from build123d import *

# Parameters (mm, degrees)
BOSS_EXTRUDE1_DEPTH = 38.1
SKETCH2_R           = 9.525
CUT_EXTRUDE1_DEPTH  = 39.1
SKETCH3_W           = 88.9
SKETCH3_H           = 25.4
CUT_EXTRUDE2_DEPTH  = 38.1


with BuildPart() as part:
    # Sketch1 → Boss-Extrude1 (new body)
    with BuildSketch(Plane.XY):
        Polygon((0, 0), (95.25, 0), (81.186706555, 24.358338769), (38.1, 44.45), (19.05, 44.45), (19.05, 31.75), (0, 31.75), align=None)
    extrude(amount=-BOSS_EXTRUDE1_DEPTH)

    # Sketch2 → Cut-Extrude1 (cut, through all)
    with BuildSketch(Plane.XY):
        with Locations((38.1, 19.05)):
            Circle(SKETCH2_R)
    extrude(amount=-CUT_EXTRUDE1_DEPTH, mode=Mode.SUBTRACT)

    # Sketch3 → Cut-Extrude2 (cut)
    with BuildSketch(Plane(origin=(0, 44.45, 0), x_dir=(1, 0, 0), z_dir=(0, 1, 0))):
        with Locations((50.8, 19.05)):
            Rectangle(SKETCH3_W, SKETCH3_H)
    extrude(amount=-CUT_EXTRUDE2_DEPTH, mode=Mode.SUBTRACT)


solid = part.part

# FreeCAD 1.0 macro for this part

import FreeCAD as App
import Part
import Sketcher
Q = App.Units.Quantity

doc = App.newDocument("Part")
body = doc.addObject("PartDesign::Body", "Body")

sketch1 = doc.addObject("Sketcher::SketchObject", "Sketch")
body.addObject(sketch1)
sketch1.AttachmentSupport = (doc.XY_Plane, [""])
sketch1.MapMode = "FlatFace"
sketch1.addGeometry(Part.LineSegment(App.Vector(0, 0, 0), App.Vector(95, 0, 0)), False)
sketch1.addGeometry(Part.LineSegment(App.Vector(95, 0, 0), App.Vector(81, 24, 0)), False)
sketch1.addGeometry(Part.LineSegment(App.Vector(81, 24, 0), App.Vector(38, 44, 0)), False)
sketch1.addGeometry(Part.LineSegment(App.Vector(38, 44, 0), App.Vector(19, 44, 0)), False)
sketch1.addGeometry(Part.LineSegment(App.Vector(19, 44, 0), App.Vector(19, 32, 0)), False)
sketch1.addGeometry(Part.LineSegment(App.Vector(19, 32, 0), App.Vector(0, 32, 0)), False)
sketch1.addGeometry(Part.LineSegment(App.Vector(0, 32, 0), App.Vector(0, 0, 0)), False)
sketch1.addConstraint(Sketcher.Constraint("Coincident", 0, 2, 1, 1))
sketch1.addConstraint(Sketcher.Constraint("Coincident", 1, 2, 2, 1))
sketch1.addConstraint(Sketcher.Constraint("Coincident", 2, 2, 3, 1))
sketch1.addConstraint(Sketcher.Constraint("Coincident", 3, 2, 4, 1))
sketch1.addConstraint(Sketcher.Constraint("Coincident", 4, 2, 5, 1))
sketch1.addConstraint(Sketcher.Constraint("Coincident", 5, 2, 6, 1))
sketch1.addConstraint(Sketcher.Constraint("Coincident", 6, 2, 0, 1))
sketch1.addConstraint(Sketcher.Constraint("Horizontal", 0))
sketch1.addConstraint(Sketcher.Constraint("Horizontal", 3))
sketch1.addConstraint(Sketcher.Constraint("Vertical", 4))
sketch1.addConstraint(Sketcher.Constraint("Horizontal", 5))
sketch1.addConstraint(Sketcher.Constraint("Vertical", 6))
sketch1.addConstraint(Sketcher.Constraint("Coincident", 6, 2, -1, 1))
sketch1.addConstraint(Sketcher.Constraint("Equal", 3, 5))
sketch1.addConstraint(Sketcher.Constraint("DistanceY", 4, 2, 4, 1, Q("0.5 in")))
sketch1.addConstraint(Sketcher.Constraint("Angle", 1, Q("120 deg")))
sketch1.addConstraint(Sketcher.Constraint("Angle", 2, Q("155 deg")))
sketch1.addConstraint(Sketcher.Constraint("DistanceX", 3, 2, 0, 2, Q("3 in")))
sketch1.addConstraint(Sketcher.Constraint("DistanceX", 0, 1, 0, 2, Q("3.75 in")))
sketch1.addConstraint(Sketcher.Constraint("DistanceY", 6, 2, 6, 1, Q("1.25 in")))
pad1 = doc.addObject("PartDesign::Pad", "Pad")
body.addObject(pad1)
pad1.Profile = sketch1
pad1.Length = Q("1.5 in")
pad1.Reversed = True

sketch2 = doc.addObject("Sketcher::SketchObject", "Sketch001")
body.addObject(sketch2)
sketch2.AttachmentSupport = (doc.XY_Plane, [""])
sketch2.MapMode = "FlatFace"
sketch2.addGeometry(Part.Circle(App.Vector(38, 19, 0), App.Vector(0, 0, 1), 10), False)
sketch2.addConstraint(Sketcher.Constraint("Diameter", 0, Q("0.75 in")))
sketch2.addConstraint(Sketcher.Constraint("DistanceX", -1, 1, 0, 3, Q("1.5 in")))
sketch2.addConstraint(Sketcher.Constraint("DistanceY", -1, 1, 0, 3, Q("0.75 in")))
pocket1 = doc.addObject("PartDesign::Pocket", "Pocket")
body.addObject(pocket1)
pocket1.Profile = sketch2
pocket1.Type = "ThroughAll"

sketch3 = doc.addObject("Sketcher::SketchObject", "Sketch002")
body.addObject(sketch3)
sketch3.AttachmentSupport = (doc.XZ_Plane, [""])
sketch3.MapMode = "FlatFace"
sketch3.AttachmentOffset = App.Placement(App.Vector(0, 0, -1.75 * 25.4), App.Rotation())
sketch3.addGeometry(Part.LineSegment(App.Vector(6, -32, 0), App.Vector(6, -6, 0)), False)
sketch3.addGeometry(Part.LineSegment(App.Vector(6, -6, 0), App.Vector(95, -6, 0)), False)
sketch3.addGeometry(Part.LineSegment(App.Vector(95, -6, 0), App.Vector(95, -32, 0)), False)
sketch3.addGeometry(Part.LineSegment(App.Vector(95, -32, 0), App.Vector(6, -32, 0)), False)
sketch3.addConstraint(Sketcher.Constraint("Coincident", 0, 2, 1, 1))
sketch3.addConstraint(Sketcher.Constraint("Coincident", 1, 2, 2, 1))
sketch3.addConstraint(Sketcher.Constraint("Coincident", 2, 2, 3, 1))
sketch3.addConstraint(Sketcher.Constraint("Coincident", 3, 2, 0, 1))
sketch3.addConstraint(Sketcher.Constraint("Vertical", 0))
sketch3.addConstraint(Sketcher.Constraint("Horizontal", 1))
sketch3.addConstraint(Sketcher.Constraint("Vertical", 2))
sketch3.addConstraint(Sketcher.Constraint("Horizontal", 3))
sketch3.addConstraint(Sketcher.Constraint("DistanceY", 0, 1, 0, 2, Q("1 in")))
sketch3.addConstraint(Sketcher.Constraint("DistanceX", 1, 1, 1, 2, Q("3.5 in")))
sketch3.addConstraint(Sketcher.Constraint("DistanceX", -1, 1, 0, 2, Q("0.25 in")))
sketch3.addConstraint(Sketcher.Constraint("DistanceY", 0, 2, -1, 1, Q("0.25 in")))
pocket2 = doc.addObject("PartDesign::Pocket", "Pocket001")
body.addObject(pocket2)
pocket2.Profile = sketch3
pocket2.Length = Q("1.5 in")
pocket2.Reversed = True

doc.recompute()
